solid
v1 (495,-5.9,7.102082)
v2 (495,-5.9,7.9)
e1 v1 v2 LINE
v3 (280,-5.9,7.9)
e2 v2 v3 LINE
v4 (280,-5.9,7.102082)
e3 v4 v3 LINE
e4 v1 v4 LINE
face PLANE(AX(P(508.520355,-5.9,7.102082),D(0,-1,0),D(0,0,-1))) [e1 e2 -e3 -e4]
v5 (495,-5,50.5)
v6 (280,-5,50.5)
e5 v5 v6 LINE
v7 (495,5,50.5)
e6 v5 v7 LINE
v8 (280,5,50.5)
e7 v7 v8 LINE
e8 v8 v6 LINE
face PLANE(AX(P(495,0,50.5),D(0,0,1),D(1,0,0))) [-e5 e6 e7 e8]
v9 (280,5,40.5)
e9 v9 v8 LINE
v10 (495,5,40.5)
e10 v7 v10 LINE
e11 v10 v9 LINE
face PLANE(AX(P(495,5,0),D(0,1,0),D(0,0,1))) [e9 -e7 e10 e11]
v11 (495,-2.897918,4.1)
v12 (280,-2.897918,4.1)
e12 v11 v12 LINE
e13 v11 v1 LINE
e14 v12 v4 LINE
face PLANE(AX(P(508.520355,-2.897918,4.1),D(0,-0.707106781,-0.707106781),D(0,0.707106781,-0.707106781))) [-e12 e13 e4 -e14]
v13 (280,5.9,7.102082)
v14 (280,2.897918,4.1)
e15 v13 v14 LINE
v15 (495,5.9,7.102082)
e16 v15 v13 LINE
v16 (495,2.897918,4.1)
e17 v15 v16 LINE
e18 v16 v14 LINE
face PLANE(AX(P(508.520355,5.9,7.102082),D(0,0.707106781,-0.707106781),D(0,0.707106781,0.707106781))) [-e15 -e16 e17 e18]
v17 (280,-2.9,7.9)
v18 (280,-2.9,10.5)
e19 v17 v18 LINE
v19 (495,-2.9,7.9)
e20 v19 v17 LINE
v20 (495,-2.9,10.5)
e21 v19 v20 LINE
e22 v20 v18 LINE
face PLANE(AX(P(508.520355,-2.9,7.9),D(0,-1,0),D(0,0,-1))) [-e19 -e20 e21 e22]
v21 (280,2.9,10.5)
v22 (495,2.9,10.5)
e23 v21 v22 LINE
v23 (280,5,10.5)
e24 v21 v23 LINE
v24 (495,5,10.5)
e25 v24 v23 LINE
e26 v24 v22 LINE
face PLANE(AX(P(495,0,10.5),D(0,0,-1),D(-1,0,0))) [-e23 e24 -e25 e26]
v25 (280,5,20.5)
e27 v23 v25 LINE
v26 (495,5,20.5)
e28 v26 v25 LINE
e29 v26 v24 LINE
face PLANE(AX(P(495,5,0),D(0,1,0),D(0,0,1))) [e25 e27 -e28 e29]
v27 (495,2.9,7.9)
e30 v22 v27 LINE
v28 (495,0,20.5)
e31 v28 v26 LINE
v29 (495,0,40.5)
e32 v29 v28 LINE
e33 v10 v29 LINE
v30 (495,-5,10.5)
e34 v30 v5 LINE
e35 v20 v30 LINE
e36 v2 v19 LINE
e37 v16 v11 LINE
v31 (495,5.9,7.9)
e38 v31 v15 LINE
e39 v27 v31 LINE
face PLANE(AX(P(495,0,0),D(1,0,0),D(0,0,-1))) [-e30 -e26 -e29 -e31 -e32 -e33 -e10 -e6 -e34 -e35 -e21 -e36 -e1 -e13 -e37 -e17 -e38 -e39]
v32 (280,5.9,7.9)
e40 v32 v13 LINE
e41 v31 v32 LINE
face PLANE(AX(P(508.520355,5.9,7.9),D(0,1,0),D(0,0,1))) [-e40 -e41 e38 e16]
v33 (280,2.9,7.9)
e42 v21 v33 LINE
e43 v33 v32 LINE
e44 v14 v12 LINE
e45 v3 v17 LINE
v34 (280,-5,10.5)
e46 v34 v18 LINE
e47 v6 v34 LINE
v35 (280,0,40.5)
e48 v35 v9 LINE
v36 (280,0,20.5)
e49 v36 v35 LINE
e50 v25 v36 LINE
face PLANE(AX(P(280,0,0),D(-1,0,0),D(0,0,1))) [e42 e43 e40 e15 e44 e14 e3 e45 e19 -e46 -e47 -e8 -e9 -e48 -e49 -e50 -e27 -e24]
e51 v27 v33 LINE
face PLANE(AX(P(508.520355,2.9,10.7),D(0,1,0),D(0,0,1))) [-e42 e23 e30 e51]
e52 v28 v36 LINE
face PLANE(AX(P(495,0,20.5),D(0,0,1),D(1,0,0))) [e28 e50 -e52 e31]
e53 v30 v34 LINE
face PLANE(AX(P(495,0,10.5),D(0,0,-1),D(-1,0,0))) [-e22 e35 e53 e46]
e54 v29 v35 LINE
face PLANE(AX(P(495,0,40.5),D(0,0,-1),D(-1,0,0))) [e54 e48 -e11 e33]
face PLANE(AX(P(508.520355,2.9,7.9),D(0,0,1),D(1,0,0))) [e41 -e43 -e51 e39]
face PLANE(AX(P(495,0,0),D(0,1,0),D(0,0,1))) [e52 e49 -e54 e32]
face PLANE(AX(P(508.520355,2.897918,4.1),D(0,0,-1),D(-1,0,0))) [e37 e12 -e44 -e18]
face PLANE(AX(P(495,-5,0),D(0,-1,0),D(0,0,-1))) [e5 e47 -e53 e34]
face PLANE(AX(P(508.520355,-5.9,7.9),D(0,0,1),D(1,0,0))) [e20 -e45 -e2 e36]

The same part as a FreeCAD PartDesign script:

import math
import FreeCAD as App
import Part
import Sketcher
from FreeCAD import Vector
Q = App.Units.Quantity

doc = App.newDocument("Part")
body = doc.addObject("PartDesign::Body", "Body")

# Sketch on YZ plane
sketch1 = body.newObject("Sketcher::SketchObject", "Sketch")
sketch1.AttachmentSupport = (doc.getObject("YZ_Plane"), [""])
sketch1.MapMode = "FlatFace"
sketch1.addGeometry([
    Part.LineSegment(Vector(9, 10, 0), Vector(3, 10, 0)),  # 0
    Part.LineSegment(Vector(3, 10, 0), Vector(3, 8, 0)),  # 1
    Part.LineSegment(Vector(3, 8, 0), Vector(6, 8, 0)),  # 2
    Part.LineSegment(Vector(6, 8, 0), Vector(6, 7.1, 0)),  # 3
    Part.LineSegment(Vector(6, 7.1, 0), Vector(2.9, 4, 0)),  # 4
    Part.LineSegment(Vector(2.9, 4, 0), Vector(-2.9, 4, 0)),  # 5
    Part.LineSegment(Vector(-2.9, 4, 0), Vector(-6, 7.1, 0)),  # 6
    Part.LineSegment(Vector(-6, 7.1, 0), Vector(-6, 8, 0)),  # 7
    Part.LineSegment(Vector(-6, 8, 0), Vector(-3, 8, 0)),  # 8
    Part.LineSegment(Vector(-3, 8, 0), Vector(-3, 10, 0)),  # 9
    Part.LineSegment(Vector(-3, 10, 0), Vector(-9, 10, 0)),  # 10
    Part.ArcOfCircle(Part.Circle(Vector(-9, 9, 0), Vector(0, 0, 1), 1), math.radians(90), math.radians(180)),  # 11
    Part.LineSegment(Vector(-10, 9, 0), Vector(-10, 3, 0)),  # 12
    Part.LineSegment(Vector(-10, 3, 0), Vector(-8, 3, 0)),  # 13
    Part.LineSegment(Vector(-8, 3, 0), Vector(-8, 6, 0)),  # 14
    Part.LineSegment(Vector(-8, 6, 0), Vector(-7.1, 6, 0)),  # 15
    Part.LineSegment(Vector(-7.1, 6, 0), Vector(-4, 2.9, 0)),  # 16
    Part.LineSegment(Vector(-4, 2.9, 0), Vector(-4, -2.9, 0)),  # 17
    Part.LineSegment(Vector(-4, -2.9, 0), Vector(-7.1, -6, 0)),  # 18
    Part.LineSegment(Vector(-7.1, -6, 0), Vector(-8, -6, 0)),  # 19
    Part.LineSegment(Vector(-8, -6, 0), Vector(-8, -3, 0)),  # 20
    Part.LineSegment(Vector(-8, -3, 0), Vector(-10, -3, 0)),  # 21
    Part.LineSegment(Vector(-10, -3, 0), Vector(-10, -9, 0)),  # 22
    Part.ArcOfCircle(Part.Circle(Vector(-9, -9, 0), Vector(0, 0, 1), 1), math.radians(-180), math.radians(-90)),  # 23
    Part.LineSegment(Vector(-9, -10, 0), Vector(-3, -10, 0)),  # 24
    Part.LineSegment(Vector(-3, -10, 0), Vector(-3, -8, 0)),  # 25
    Part.LineSegment(Vector(-3, -8, 0), Vector(-6, -8, 0)),  # 26
    Part.LineSegment(Vector(-6, -8, 0), Vector(-6, -7.1, 0)),  # 27
    Part.LineSegment(Vector(-6, -7.1, 0), Vector(-2.9, -4, 0)),  # 28
    Part.LineSegment(Vector(-2.9, -4, 0), Vector(2.9, -4, 0)),  # 29
    Part.LineSegment(Vector(2.9, -4, 0), Vector(6, -7.1, 0)),  # 30
    Part.LineSegment(Vector(6, -7.1, 0), Vector(6, -8, 0)),  # 31
    Part.LineSegment(Vector(6, -8, 0), Vector(3, -8, 0)),  # 32
    Part.LineSegment(Vector(3, -8, 0), Vector(3, -10, 0)),  # 33
    Part.LineSegment(Vector(3, -10, 0), Vector(9, -10, 0)),  # 34
    Part.ArcOfCircle(Part.Circle(Vector(9, -9, 0), Vector(0, 0, 1), 1), math.radians(-90), math.radians(0)),  # 35
    Part.LineSegment(Vector(10, -9, 0), Vector(10, -3, 0)),  # 36
    Part.LineSegment(Vector(10, -3, 0), Vector(8, -3, 0)),  # 37
    Part.LineSegment(Vector(8, -3, 0), Vector(8, -6, 0)),  # 38
    Part.LineSegment(Vector(8, -6, 0), Vector(7.1, -6, 0)),  # 39
    Part.LineSegment(Vector(7.1, -6, 0), Vector(4, -2.9, 0)),  # 40
    Part.LineSegment(Vector(4, -2.9, 0), Vector(4, 2.9, 0)),  # 41
    Part.LineSegment(Vector(4, 2.9, 0), Vector(7.1, 6, 0)),  # 42
    Part.LineSegment(Vector(7.1, 6, 0), Vector(8, 6, 0)),  # 43
    Part.LineSegment(Vector(8, 6, 0), Vector(8, 3, 0)),  # 44
    Part.LineSegment(Vector(8, 3, 0), Vector(10, 3, 0)),  # 45
    Part.LineSegment(Vector(10, 3, 0), Vector(10, 9, 0)),  # 46
    Part.ArcOfCircle(Part.Circle(Vector(9, 9, 0), Vector(0, 0, 1), 1), math.radians(0), math.radians(90)),  # 47
    Part.Circle(Vector(0, 0, 0), Vector(0, 0, 1), 2.1),  # 48
], False)
sketch1.addConstraint([
    Sketcher.Constraint("Coincident", 0, 2, 1, 1),
    Sketcher.Constraint("Coincident", 1, 2, 2, 1),
    Sketcher.Constraint("Coincident", 2, 2, 3, 1),
    Sketcher.Constraint("Coincident", 3, 2, 4, 1),
    Sketcher.Constraint("Coincident", 4, 2, 5, 1),
    Sketcher.Constraint("Coincident", 5, 2, 6, 1),
    Sketcher.Constraint("Coincident", 6, 2, 7, 1),
    Sketcher.Constraint("Coincident", 7, 2, 8, 1),
    Sketcher.Constraint("Coincident", 8, 2, 9, 1),
    Sketcher.Constraint("Coincident", 9, 2, 10, 1),
    Sketcher.Constraint("Tangent", 10, 2, 11, 1),
    Sketcher.Constraint("Tangent", 11, 2, 12, 1),
    Sketcher.Constraint("Coincident", 12, 2, 13, 1),
    Sketcher.Constraint("Coincident", 13, 2, 14, 1),
    Sketcher.Constraint("Coincident", 14, 2, 15, 1),
    Sketcher.Constraint("Coincident", 15, 2, 16, 1),
    Sketcher.Constraint("Coincident", 16, 2, 17, 1),
    Sketcher.Constraint("Coincident", 17, 2, 18, 1),
    Sketcher.Constraint("Coincident", 18, 2, 19, 1),
    Sketcher.Constraint("Coincident", 19, 2, 20, 1),
    Sketcher.Constraint("Coincident", 20, 2, 21, 1),
    Sketcher.Constraint("Coincident", 21, 2, 22, 1),
    Sketcher.Constraint("Tangent", 22, 2, 23, 1),
    Sketcher.Constraint("Tangent", 23, 2, 24, 1),
    Sketcher.Constraint("Coincident", 24, 2, 25, 1),
    Sketcher.Constraint("Coincident", 25, 2, 26, 1),
    Sketcher.Constraint("Coincident", 26, 2, 27, 1),
    Sketcher.Constraint("Coincident", 27, 2, 28, 1),
    Sketcher.Constraint("Coincident", 28, 2, 29, 1),
    Sketcher.Constraint("Coincident", 29, 2, 30, 1),
    Sketcher.Constraint("Coincident", 30, 2, 31, 1),
    Sketcher.Constraint("Coincident", 31, 2, 32, 1),
    Sketcher.Constraint("Coincident", 32, 2, 33, 1),
    Sketcher.Constraint("Coincident", 33, 2, 34, 1),
    Sketcher.Constraint("Tangent", 34, 2, 35, 1),
    Sketcher.Constraint("Tangent", 35, 2, 36, 1),
    Sketcher.Constraint("Coincident", 36, 2, 37, 1),
    Sketcher.Constraint("Coincident", 37, 2, 38, 1),
    Sketcher.Constraint("Coincident", 38, 2, 39, 1),
    Sketcher.Constraint("Coincident", 39, 2, 40, 1),
    Sketcher.Constraint("Coincident", 40, 2, 41, 1),
    Sketcher.Constraint("Coincident", 41, 2, 42, 1),
    Sketcher.Constraint("Coincident", 42, 2, 43, 1),
    Sketcher.Constraint("Coincident", 43, 2, 44, 1),
    Sketcher.Constraint("Coincident", 44, 2, 45, 1),
    Sketcher.Constraint("Coincident", 45, 2, 46, 1),
    Sketcher.Constraint("Tangent", 46, 2, 47, 1),
    Sketcher.Constraint("Tangent", 47, 2, 0, 1),
    Sketcher.Constraint("Horizontal", 0),
    Sketcher.Constraint("Vertical", 1),
    Sketcher.Constraint("Horizontal", 2),
    Sketcher.Constraint("Vertical", 3),
    Sketcher.Constraint("Horizontal", 5),
    Sketcher.Constraint("Vertical", 7),
    Sketcher.Constraint("Horizontal", 8),
    Sketcher.Constraint("Vertical", 9),
    Sketcher.Constraint("Horizontal", 10),
    Sketcher.Constraint("Vertical", 12),
    Sketcher.Constraint("Horizontal", 13),
    Sketcher.Constraint("Vertical", 14),
    Sketcher.Constraint("Horizontal", 15),
    Sketcher.Constraint("Vertical", 17),
    Sketcher.Constraint("Horizontal", 19),
    Sketcher.Constraint("Vertical", 20),
    Sketcher.Constraint("Horizontal", 21),
    Sketcher.Constraint("Vertical", 22),
    Sketcher.Constraint("Horizontal", 24),
    Sketcher.Constraint("Vertical", 25),
    Sketcher.Constraint("Horizontal", 26),
    Sketcher.Constraint("Vertical", 27),
    Sketcher.Constraint("Horizontal", 29),
    Sketcher.Constraint("Vertical", 31),
    Sketcher.Constraint("Horizontal", 32),
    Sketcher.Constraint("Vertical", 33),
    Sketcher.Constraint("Horizontal", 34),
    Sketcher.Constraint("Vertical", 36),
    Sketcher.Constraint("Horizontal", 37),
    Sketcher.Constraint("Vertical", 38),
    Sketcher.Constraint("Horizontal", 39),
    Sketcher.Constraint("Vertical", 41),
    Sketcher.Constraint("Horizontal", 43),
    Sketcher.Constraint("Vertical", 44),
    Sketcher.Constraint("Horizontal", 45),
    Sketcher.Constraint("Vertical", 46),
    Sketcher.Constraint("Coincident", 48, 3, -1, 1),
    Sketcher.Constraint("Equal", 11, 23),
    Sketcher.Constraint("Equal", 23, 35),
    Sketcher.Constraint("Equal", 35, 47),
    Sketcher.Constraint("Symmetric", 11, 3, 35, 3, -1, 1),
    Sketcher.Constraint("Symmetric", 23, 3, 47, 3, -1, 1),
    Sketcher.Constraint("Symmetric", 1, 2, 25, 2, -1, 1),
    Sketcher.Constraint("Symmetric", 3, 2, 27, 2, -1, 1),
    Sketcher.Constraint("Symmetric", 4, 2, 28, 2, -1, 1),
    Sketcher.Constraint("Symmetric", 6, 2, 30, 2, -1, 1),
    Sketcher.Constraint("Symmetric", 8, 2, 32, 2, -1, 1),
    Sketcher.Constraint("Symmetric", 13, 2, 37, 2, -1, 1),
    Sketcher.Constraint("Symmetric", 15, 2, 39, 2, -1, 1),
    Sketcher.Constraint("Symmetric", 16, 2, 40, 2, -1, 1),
    Sketcher.Constraint("Symmetric", 18, 2, 42, 2, -1, 1),
    Sketcher.Constraint("Symmetric", 20, 2, 44, 2, -1, 1),
    Sketcher.Constraint("Symmetric", 23, 3, 35, 3, -2),
    Sketcher.Constraint("Symmetric", 3, 2, 6, 2, -2),
    Sketcher.Constraint("Symmetric", 1, 2, 8, 2, -2),
    Sketcher.Constraint("Symmetric", 20, 2, 37, 2, -2),
    Sketcher.Constraint("Symmetric", 18, 2, 39, 2, -2),
    Sketcher.Constraint("Perpendicular", 4, 6),
    Sketcher.Constraint("Parallel", 6, 16),
    Sketcher.Constraint("Perpendicular", 16, 18),
    Sketcher.Constraint("Perpendicular", 28, 30),
    Sketcher.Constraint("Perpendicular", 40, 42),
    Sketcher.Constraint("Horizontal", 17, 2, 40, 2),
    Sketcher.Constraint("Equal", 45, 1),
    Sketcher.Constraint("Equal", 43, 3),
    Sketcher.Constraint("Equal", 34, 12),
    Sketcher.Constraint("Equal", 32, 14),
    Sketcher.Constraint("Equal", 29, 17),
    Sketcher.Constraint("Equal", 6, 16),
    Sketcher.Constraint("Radius", 11, Q("1 mm")),
    Sketcher.Constraint("Diameter", 48, Q("4.2 mm")),
    Sketcher.Constraint("DistanceX", 0, 2, 0, 1, Q("6 mm")),
    Sketcher.Constraint("DistanceX", 2, 1, 2, 2, Q("3 mm")),
    Sketcher.Constraint("DistanceX", 13, 1, 13, 2, Q("2 mm")),
    Sketcher.Constraint("DistanceX", 11, 3, -1, 1, Q("9 mm")),
    Sketcher.Constraint("DistanceY", -1, 1, 4, 2, Q("4 mm")),
    Sketcher.Constraint("DistanceX", 5, 2, 5, 1, Q("5.87868 mm")),
])
pad1 = body.newObject("PartDesign::Pad", "Pad")
pad1.Profile = sketch1
pad1.Length = 65

# Sketch on YZ plane
sketch2 = body.newObject("Sketcher::SketchObject", "Sketch001")
sketch2.AttachmentSupport = (doc.getObject("YZ_Plane"), [""])
sketch2.MapMode = "FlatFace"
sketch2.AttachmentOffset = App.Placement(Vector(0, 0, 65), App.Rotation())
sketch2.addGeometry([
    Part.LineSegment(Vector(13, 12, 0), Vector(-14, 12, 0)),
    Part.LineSegment(Vector(-14, 12, 0), Vector(-14, -14, 0)),
    Part.LineSegment(Vector(-14, -14, 0), Vector(13, -14, 0)),
    Part.LineSegment(Vector(13, -14, 0), Vector(13, 12, 0)),
], False)
sketch2.addConstraint([
    Sketcher.Constraint("Coincident", 0, 2, 1, 1),
    Sketcher.Constraint("Coincident", 1, 2, 2, 1),
    Sketcher.Constraint("Coincident", 2, 2, 3, 1),
    Sketcher.Constraint("Coincident", 3, 2, 0, 1),
    Sketcher.Constraint("Horizontal", 0),
    Sketcher.Constraint("Vertical", 1),
    Sketcher.Constraint("Horizontal", 2),
    Sketcher.Constraint("Vertical", 3),
    Sketcher.Constraint("DistanceX", 0, 2, 0, 1, Q("26.977421 mm")),
    Sketcher.Constraint("DistanceY", 1, 2, 1, 1, Q("26.589814 mm")),
    Sketcher.Constraint("DistanceY", 1, 2, -1, 1, Q("14.471229 mm")),
    Sketcher.Constraint("DistanceX", 0, 2, -1, 1, Q("14.303638 mm")),
])
pocket1 = body.newObject("PartDesign::Pocket", "Pocket")
pocket1.Profile = sketch2
pocket1.Type = "ThroughAll"
body2 = doc.addObject("PartDesign::Body", "Body001")

# Sketch on YZ plane
sketch3 = body2.newObject("Sketcher::SketchObject", "Sketch002")
sketch3.AttachmentSupport = (doc.getObject("YZ_Plane001"), [""])
sketch3.MapMode = "FlatFace"
sketch3.AttachmentOffset = App.Placement(Vector(0, 0, 65), App.Rotation())
sketch3.addGeometry([
    Part.LineSegment(Vector(2.7, 10.5, 0), Vector(5, 10.5, 0)),  # 0
    Part.LineSegment(Vector(5, 10.5, 0), Vector(5, 20.5, 0)),  # 1
    Part.LineSegment(Vector(5, 20.5, 0), Vector(0, 20.5, 0)),  # 2
    Part.LineSegment(Vector(0, 20.5, 0), Vector(0, 40.5, 0)),  # 3
    Part.LineSegment(Vector(0, 40.5, 0), Vector(5, 40.5, 0)),  # 4
    Part.LineSegment(Vector(5, 40.5, 0), Vector(5, 50.5, 0)),  # 5
    Part.LineSegment(Vector(5, 50.5, 0), Vector(-5, 50.5, 0)),  # 6
    Part.LineSegment(Vector(-5, 50.5, 0), Vector(-5, 10.5, 0)),  # 7
    Part.LineSegment(Vector(-5, 10.5, 0), Vector(-2.7, 10.5, 0)),  # 8
    Part.LineSegment(Vector(-2.7, 10.5, 0), Vector(-2.7, 7.7, 0)),  # 9
    Part.LineSegment(Vector(-2.7, 7.7, 0), Vector(-5.7, 7.7, 0)),  # 10
    Part.LineSegment(Vector(-5.7, 7.7, 0), Vector(-5.7, 7.2, 0)),  # 11
    Part.LineSegment(Vector(-5.7, 7.2, 0), Vector(-2.8, 4.3, 0)),  # 12
    Part.LineSegment(Vector(-2.8, 4.3, 0), Vector(2.8, 4.3, 0)),  # 13
    Part.LineSegment(Vector(2.8, 4.3, 0), Vector(5.7, 7.2, 0)),  # 14
    Part.LineSegment(Vector(5.7, 7.2, 0), Vector(5.7, 7.7, 0)),  # 15
    Part.LineSegment(Vector(5.7, 7.7, 0), Vector(2.7, 7.7, 0)),  # 16
    Part.LineSegment(Vector(2.7, 7.7, 0), Vector(2.7, 10.5, 0)),  # 17
], False)
sketch3.addConstraint([
    Sketcher.Constraint("Coincident", 0, 2, 1, 1),
    Sketcher.Constraint("Coincident", 1, 2, 2, 1),
    Sketcher.Constraint("Coincident", 2, 2, 3, 1),
    Sketcher.Constraint("Coincident", 3, 2, 4, 1),
    Sketcher.Constraint("Coincident", 4, 2, 5, 1),
    Sketcher.Constraint("Coincident", 5, 2, 6, 1),
    Sketcher.Constraint("Coincident", 6, 2, 7, 1),
    Sketcher.Constraint("Coincident", 7, 2, 8, 1),
    Sketcher.Constraint("Coincident", 8, 2, 9, 1),
    Sketcher.Constraint("Coincident", 9, 2, 10, 1),
    Sketcher.Constraint("Coincident", 10, 2, 11, 1),
    Sketcher.Constraint("Coincident", 11, 2, 12, 1),
    Sketcher.Constraint("Coincident", 12, 2, 13, 1),
    Sketcher.Constraint("Coincident", 13, 2, 14, 1),
    Sketcher.Constraint("Coincident", 14, 2, 15, 1),
    Sketcher.Constraint("Coincident", 15, 2, 16, 1),
    Sketcher.Constraint("Coincident", 16, 2, 17, 1),
    Sketcher.Constraint("Coincident", 17, 2, 0, 1),
    Sketcher.Constraint("Horizontal", 0),
    Sketcher.Constraint("Vertical", 1),
    Sketcher.Constraint("Horizontal", 2),
    Sketcher.Constraint("Vertical", 3),
    Sketcher.Constraint("Horizontal", 4),
    Sketcher.Constraint("Vertical", 5),
    Sketcher.Constraint("Horizontal", 6),
    Sketcher.Constraint("Vertical", 7),
    Sketcher.Constraint("Horizontal", 8),
    Sketcher.Constraint("Vertical", 9),
    Sketcher.Constraint("Horizontal", 10),
    Sketcher.Constraint("Vertical", 11),
    Sketcher.Constraint("Horizontal", 13),
    Sketcher.Constraint("Vertical", 15),
    Sketcher.Constraint("Horizontal", 16),
    Sketcher.Constraint("Vertical", 17),
    Sketcher.Constraint("Symmetric", 0, 2, 7, 2, -2),
    Sketcher.Constraint("Symmetric", 11, 2, 14, 2, -2),
    Sketcher.Constraint("Symmetric", 9, 2, 16, 2, -2),
    Sketcher.Constraint("PointOnObject", 2, 2, -2),
    Sketcher.Constraint("Perpendicular", 12, 14),
    Sketcher.Constraint("Vertical", 1, 2, 4, 2),
    Sketcher.Constraint("Equal", 6, 1),
    Sketcher.Constraint("Equal", 1, 5),
    Sketcher.Constraint("Equal", 12, 14),
    Sketcher.Constraint("DistanceX", 2, 2, 2, 1, Q("5 mm")),
    Sketcher.Constraint("DistanceX", 10, 2, 10, 1, Q("3 mm")),
    Sketcher.Constraint("DistanceY", 3, 1, 3, 2, Q("20 mm")),
    Sketcher.Constraint("DistanceX", 0, 1, 0, 2, Q("2.3 mm")),
    Sketcher.Constraint("DistanceY", 9, 2, 9, 1, Q("2.8 mm")),
    Sketcher.Constraint("DistanceY", -1, 1, 0, 2, Q("10.5 mm")),
    Sketcher.Constraint("DistanceY", -1, 1, 12, 2, Q("4.3 mm")),
    Sketcher.Constraint("Distance", 12, Q("4.079899 mm")),
])
pad2 = body2.newObject("PartDesign::Pad", "Pad001")
pad2.Profile = sketch3
pad2.Length = 430

# Sketch on YZ plane
sketch4 = body2.newObject("Sketcher::SketchObject", "Sketch003")
sketch4.AttachmentSupport = (doc.getObject("YZ_Plane001"), [""])
sketch4.MapMode = "FlatFace"
sketch4.AttachmentOffset = App.Placement(Vector(0, 0, 65), App.Rotation())
sketch4.addGeometry([
    Part.LineSegment(Vector(8, 0, 0), Vector(-8, 0, 0)),
    Part.LineSegment(Vector(-8, 0, 0), Vector(-8, 10, 0)),
    Part.LineSegment(Vector(-8, 10, 0), Vector(8, 10, 0)),
    Part.LineSegment(Vector(8, 10, 0), Vector(8, 0, 0)),
], False)
sketch4.addConstraint([
    Sketcher.Constraint("Coincident", 0, 2, 1, 1),
    Sketcher.Constraint("Coincident", 1, 2, 2, 1),
    Sketcher.Constraint("Coincident", 2, 2, 3, 1),
    Sketcher.Constraint("Coincident", 3, 2, 0, 1),
    Sketcher.Constraint("Horizontal", 0),
    Sketcher.Constraint("Vertical", 1),
    Sketcher.Constraint("Horizontal", 2),
    Sketcher.Constraint("Vertical", 3),
    Sketcher.Constraint("PointOnObject", 0, 2, -1),
    Sketcher.Constraint("DistanceY", 1, 1, 1, 2, Q("10.5 mm")),
    Sketcher.Constraint("DistanceX", 0, 2, 0, 1, Q("16.6705 mm")),
    Sketcher.Constraint("DistanceX", 0, 2, -1, 1, Q("8.452324 mm")),
])
pocket2 = body2.newObject("PartDesign::Pocket", "Pocket001")
pocket2.Profile = sketch4
pocket2.Length = 20
pocket2.Reversed = True

# Sketch on YZ plane
sketch5 = body2.newObject("Sketcher::SketchObject", "Sketch004")
sketch5.AttachmentSupport = (doc.getObject("YZ_Plane001"), [""])
sketch5.MapMode = "FlatFace"
sketch5.AttachmentOffset = App.Placement(Vector(0, 0, 65), App.Rotation())
sketch5.addGeometry([
    Part.LineSegment(Vector(15, -4, 0), Vector(-14, -4, 0)),
    Part.LineSegment(Vector(-14, -4, 0), Vector(-14, 59, 0)),
    Part.LineSegment(Vector(-14, 59, 0), Vector(15, 59, 0)),
    Part.LineSegment(Vector(15, 59, 0), Vector(15, -4, 0)),
], False)
sketch5.addConstraint([
    Sketcher.Constraint("Coincident", 0, 2, 1, 1),
    Sketcher.Constraint("Coincident", 1, 2, 2, 1),
    Sketcher.Constraint("Coincident", 2, 2, 3, 1),
    Sketcher.Constraint("Coincident", 3, 2, 0, 1),
    Sketcher.Constraint("Horizontal", 0),
    Sketcher.Constraint("Vertical", 1),
    Sketcher.Constraint("Horizontal", 2),
    Sketcher.Constraint("Vertical", 3),
    Sketcher.Constraint("DistanceX", 0, 2, 0, 1, Q("29.503454 mm")),
    Sketcher.Constraint("DistanceY", 1, 1, 1, 2, Q("62.679537 mm")),
    Sketcher.Constraint("DistanceX", 0, 2, -1, 1, Q("14.47628 mm")),
    Sketcher.Constraint("DistanceY", 0, 2, -1, 1, Q("3.79573 mm")),
])
pocket3 = body2.newObject("PartDesign::Pocket", "Pocket002")
pocket3.Profile = sketch5
pocket3.Length = 215
pocket3.Reversed = True

# Sketch on YZ plane
sketch6 = body2.newObject("Sketcher::SketchObject", "Sketch005")
sketch6.AttachmentSupport = (doc.getObject("YZ_Plane001"), [""])
sketch6.MapMode = "FlatFace"
sketch6.AttachmentOffset = App.Placement(Vector(0, 0, 280), App.Rotation())
sketch6.addGeometry([
    Part.LineSegment(Vector(-2.9, 10.7, 0), Vector(2.9, 10.7, 0)),  # 0
    Part.LineSegment(Vector(2.9, 10.7, 0), Vector(2.9, 7.9, 0)),  # 1
    Part.LineSegment(Vector(2.9, 7.9, 0), Vector(5.9, 7.9, 0)),  # 2
    Part.LineSegment(Vector(5.9, 7.9, 0), Vector(5.9, 7.1, 0)),  # 3
    Part.LineSegment(Vector(5.9, 7.1, 0), Vector(2.9, 4.1, 0)),  # 4
    Part.LineSegment(Vector(2.9, 4.1, 0), Vector(-2.9, 4.1, 0)),  # 5
    Part.LineSegment(Vector(-2.9, 4.1, 0), Vector(-5.9, 7.1, 0)),  # 6
    Part.LineSegment(Vector(-5.9, 7.1, 0), Vector(-5.9, 7.9, 0)),  # 7
    Part.LineSegment(Vector(-5.9, 7.9, 0), Vector(-2.9, 7.9, 0)),  # 8
    Part.LineSegment(Vector(-2.9, 7.9, 0), Vector(-2.9, 10.7, 0)),  # 9
    Part.LineSegment(Vector(2.7, 10.5, 0), Vector(-2.7, 10.5, 0)),  # 10
    Part.LineSegment(Vector(-2.7, 10.5, 0), Vector(-2.7, 7.7, 0)),  # 11
    Part.LineSegment(Vector(-2.7, 7.7, 0), Vector(-5.7, 7.7, 0)),  # 12
    Part.LineSegment(Vector(-5.7, 7.7, 0), Vector(-5.7, 7.2, 0)),  # 13
    Part.LineSegment(Vector(-5.7, 7.2, 0), Vector(-2.8, 4.3, 0)),  # 14
    Part.LineSegment(Vector(-2.8, 4.3, 0), Vector(2.8, 4.3, 0)),  # 15
    Part.LineSegment(Vector(2.8, 4.3, 0), Vector(5.7, 7.2, 0)),  # 16
    Part.LineSegment(Vector(5.7, 7.2, 0), Vector(5.7, 7.7, 0)),  # 17
    Part.LineSegment(Vector(5.7, 7.7, 0), Vector(2.7, 7.7, 0)),  # 18
    Part.LineSegment(Vector(2.7, 7.7, 0), Vector(2.7, 10.5, 0)),  # 19
], False)
sketch6.addConstraint([
    Sketcher.Constraint("Coincident", 0, 2, 1, 1),
    Sketcher.Constraint("Coincident", 1, 2, 2, 1),
    Sketcher.Constraint("Coincident", 2, 2, 3, 1),
    Sketcher.Constraint("Coincident", 3, 2, 4, 1),
    Sketcher.Constraint("Coincident", 4, 2, 5, 1),
    Sketcher.Constraint("Coincident", 5, 2, 6, 1),
    Sketcher.Constraint("Coincident", 6, 2, 7, 1),
    Sketcher.Constraint("Coincident", 7, 2, 8, 1),
    Sketcher.Constraint("Coincident", 8, 2, 9, 1),
    Sketcher.Constraint("Coincident", 9, 2, 0, 1),
    Sketcher.Constraint("Coincident", 10, 2, 11, 1),
    Sketcher.Constraint("Coincident", 11, 2, 12, 1),
    Sketcher.Constraint("Coincident", 12, 2, 13, 1),
    Sketcher.Constraint("Coincident", 13, 2, 14, 1),
    Sketcher.Constraint("Coincident", 14, 2, 15, 1),
    Sketcher.Constraint("Coincident", 15, 2, 16, 1),
    Sketcher.Constraint("Coincident", 16, 2, 17, 1),
    Sketcher.Constraint("Coincident", 17, 2, 18, 1),
    Sketcher.Constraint("Coincident", 18, 2, 19, 1),
    Sketcher.Constraint("Coincident", 19, 2, 10, 1),
    Sketcher.Constraint("Horizontal", 0),
    Sketcher.Constraint("Vertical", 1),
    Sketcher.Constraint("Horizontal", 2),
    Sketcher.Constraint("Vertical", 3),
    Sketcher.Constraint("Horizontal", 5),
    Sketcher.Constraint("Vertical", 7),
    Sketcher.Constraint("Horizontal", 8),
    Sketcher.Constraint("Vertical", 9),
    Sketcher.Constraint("Horizontal", 10),
    Sketcher.Constraint("Vertical", 11),
    Sketcher.Constraint("Horizontal", 12),
    Sketcher.Constraint("Vertical", 13),
    Sketcher.Constraint("Horizontal", 15),
    Sketcher.Constraint("Vertical", 17),
    Sketcher.Constraint("Horizontal", 18),
    Sketcher.Constraint("Vertical", 19),
    Sketcher.Constraint("Symmetric", 3, 2, 6, 2, -2),
    Sketcher.Constraint("Symmetric", 1, 2, 8, 2, -2),
    Sketcher.Constraint("Symmetric", 13, 2, 16, 2, -2),
    Sketcher.Constraint("Symmetric", 11, 2, 18, 2, -2),
    Sketcher.Constraint("Perpendicular", 4, 6),
    Sketcher.Constraint("Parallel", 6, 14),
    Sketcher.Constraint("Perpendicular", 14, 16),
    Sketcher.Constraint("Equal", 8, 12),
    Sketcher.Constraint("Equal", 9, 11),
    Sketcher.Constraint("Equal", 4, 6),
    Sketcher.Constraint("DistanceX", 2, 1, 2, 2, Q("3 mm")),
    Sketcher.Constraint("DistanceX", 0, 1, 0, 2, Q("5.8 mm")),
    Sketcher.Constraint("DistanceX", 10, 2, 10, 1, Q("5.4 mm")),
    Sketcher.Constraint("DistanceY", 1, 2, 1, 1, Q("2.8 mm")),
    Sketcher.Constraint("DistanceY", 11, 2, 9, 2, Q("3 mm")),
    Sketcher.Constraint("DistanceY", -1, 1, 0, 2, Q("10.7 mm")),
    Sketcher.Constraint("DistanceY", -1, 1, 4, 2, Q("4.1 mm")),
    Sketcher.Constraint("DistanceY", -1, 1, 14, 2, Q("4.3 mm")),
    Sketcher.Constraint("Distance", 14, Q("4.079899 mm")),
    Sketcher.Constraint("DistanceY", 3, 2, 3, 1, Q("0.797918 mm")),
])
pad3 = body2.newObject("PartDesign::Pad", "Pad002")
pad3.Profile = sketch6
pad3.Length = 215

doc.recompute()
